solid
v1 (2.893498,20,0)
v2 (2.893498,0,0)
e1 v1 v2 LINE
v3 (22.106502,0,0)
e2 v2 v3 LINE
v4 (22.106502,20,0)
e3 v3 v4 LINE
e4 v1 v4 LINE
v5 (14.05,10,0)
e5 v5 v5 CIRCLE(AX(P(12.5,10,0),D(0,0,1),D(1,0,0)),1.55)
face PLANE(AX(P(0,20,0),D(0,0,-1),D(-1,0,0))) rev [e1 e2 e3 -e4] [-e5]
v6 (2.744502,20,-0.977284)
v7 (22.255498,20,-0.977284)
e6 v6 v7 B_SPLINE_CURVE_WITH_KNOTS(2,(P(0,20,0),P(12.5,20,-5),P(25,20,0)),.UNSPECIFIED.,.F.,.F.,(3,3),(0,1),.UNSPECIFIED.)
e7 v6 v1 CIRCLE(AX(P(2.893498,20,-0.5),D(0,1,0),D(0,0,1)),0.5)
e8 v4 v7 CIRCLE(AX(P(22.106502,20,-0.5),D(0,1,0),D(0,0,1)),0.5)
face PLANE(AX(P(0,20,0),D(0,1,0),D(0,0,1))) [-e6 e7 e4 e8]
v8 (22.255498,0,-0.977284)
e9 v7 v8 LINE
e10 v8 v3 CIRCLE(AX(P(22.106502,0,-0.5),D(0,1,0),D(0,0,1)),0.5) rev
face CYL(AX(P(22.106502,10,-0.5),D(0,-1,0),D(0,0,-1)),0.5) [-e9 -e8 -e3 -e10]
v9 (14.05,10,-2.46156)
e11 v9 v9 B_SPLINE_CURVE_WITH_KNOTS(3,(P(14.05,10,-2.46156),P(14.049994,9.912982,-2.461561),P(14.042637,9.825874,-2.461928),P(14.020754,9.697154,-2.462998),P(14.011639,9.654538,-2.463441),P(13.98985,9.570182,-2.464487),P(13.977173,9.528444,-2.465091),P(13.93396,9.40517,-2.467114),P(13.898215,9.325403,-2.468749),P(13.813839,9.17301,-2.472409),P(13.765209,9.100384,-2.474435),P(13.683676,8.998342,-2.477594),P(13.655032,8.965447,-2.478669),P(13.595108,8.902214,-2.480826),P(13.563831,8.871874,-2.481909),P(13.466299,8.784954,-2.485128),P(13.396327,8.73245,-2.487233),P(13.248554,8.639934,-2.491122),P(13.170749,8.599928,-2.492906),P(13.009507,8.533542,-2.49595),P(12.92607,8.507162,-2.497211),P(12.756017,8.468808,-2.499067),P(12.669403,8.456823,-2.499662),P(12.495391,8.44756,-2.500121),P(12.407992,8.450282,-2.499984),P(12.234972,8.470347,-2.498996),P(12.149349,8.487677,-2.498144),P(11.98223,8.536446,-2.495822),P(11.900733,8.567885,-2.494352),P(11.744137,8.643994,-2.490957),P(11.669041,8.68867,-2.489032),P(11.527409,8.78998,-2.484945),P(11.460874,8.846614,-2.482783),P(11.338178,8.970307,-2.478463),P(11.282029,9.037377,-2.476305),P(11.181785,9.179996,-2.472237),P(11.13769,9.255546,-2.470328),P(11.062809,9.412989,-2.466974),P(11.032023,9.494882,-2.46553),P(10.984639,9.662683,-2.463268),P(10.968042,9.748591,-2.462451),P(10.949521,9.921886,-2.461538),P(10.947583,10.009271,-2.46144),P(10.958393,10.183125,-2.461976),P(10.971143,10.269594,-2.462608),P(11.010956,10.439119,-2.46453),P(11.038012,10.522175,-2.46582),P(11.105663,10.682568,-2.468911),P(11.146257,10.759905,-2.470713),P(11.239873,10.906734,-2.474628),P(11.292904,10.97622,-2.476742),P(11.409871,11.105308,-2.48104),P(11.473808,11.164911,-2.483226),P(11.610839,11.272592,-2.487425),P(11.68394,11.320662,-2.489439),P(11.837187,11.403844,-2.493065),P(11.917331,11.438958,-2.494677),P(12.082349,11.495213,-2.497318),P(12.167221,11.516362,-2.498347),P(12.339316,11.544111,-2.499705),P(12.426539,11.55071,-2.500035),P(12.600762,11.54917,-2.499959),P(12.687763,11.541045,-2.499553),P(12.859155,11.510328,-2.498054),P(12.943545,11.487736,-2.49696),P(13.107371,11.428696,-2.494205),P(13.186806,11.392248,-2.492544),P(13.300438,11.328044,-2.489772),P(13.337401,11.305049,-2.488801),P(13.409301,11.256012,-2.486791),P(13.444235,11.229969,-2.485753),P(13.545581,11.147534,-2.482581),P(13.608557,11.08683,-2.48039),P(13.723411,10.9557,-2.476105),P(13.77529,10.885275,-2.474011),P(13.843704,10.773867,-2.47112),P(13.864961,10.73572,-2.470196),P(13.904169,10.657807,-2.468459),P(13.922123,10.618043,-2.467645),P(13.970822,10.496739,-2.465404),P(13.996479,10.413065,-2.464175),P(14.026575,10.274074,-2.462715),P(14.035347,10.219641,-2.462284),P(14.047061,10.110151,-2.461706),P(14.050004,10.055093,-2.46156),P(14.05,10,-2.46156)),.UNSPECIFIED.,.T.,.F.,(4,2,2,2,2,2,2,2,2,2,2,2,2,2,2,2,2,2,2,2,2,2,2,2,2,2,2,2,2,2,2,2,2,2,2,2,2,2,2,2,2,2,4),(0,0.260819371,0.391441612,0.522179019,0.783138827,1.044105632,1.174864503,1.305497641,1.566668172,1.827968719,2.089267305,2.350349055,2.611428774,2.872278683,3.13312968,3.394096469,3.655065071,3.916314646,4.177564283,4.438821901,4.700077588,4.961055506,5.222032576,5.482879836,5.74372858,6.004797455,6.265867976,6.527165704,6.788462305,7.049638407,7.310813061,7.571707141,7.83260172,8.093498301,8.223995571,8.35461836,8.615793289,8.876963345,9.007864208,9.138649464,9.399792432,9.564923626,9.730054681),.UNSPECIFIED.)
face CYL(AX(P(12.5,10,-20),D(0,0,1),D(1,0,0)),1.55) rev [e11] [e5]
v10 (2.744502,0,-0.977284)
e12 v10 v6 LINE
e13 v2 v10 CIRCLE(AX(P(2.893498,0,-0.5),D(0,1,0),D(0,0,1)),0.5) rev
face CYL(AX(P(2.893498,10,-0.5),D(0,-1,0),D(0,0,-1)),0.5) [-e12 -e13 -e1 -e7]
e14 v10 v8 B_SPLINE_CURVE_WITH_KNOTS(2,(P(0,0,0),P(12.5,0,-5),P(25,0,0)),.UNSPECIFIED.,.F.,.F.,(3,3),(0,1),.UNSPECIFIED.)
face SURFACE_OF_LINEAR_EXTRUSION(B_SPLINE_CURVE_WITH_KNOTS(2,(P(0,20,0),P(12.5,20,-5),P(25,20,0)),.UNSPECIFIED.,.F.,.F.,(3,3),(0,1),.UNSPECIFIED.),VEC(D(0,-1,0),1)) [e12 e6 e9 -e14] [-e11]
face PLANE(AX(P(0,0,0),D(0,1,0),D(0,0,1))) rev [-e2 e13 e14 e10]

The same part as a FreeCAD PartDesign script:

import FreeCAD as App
import Part
import Sketcher

V = App.Vector
Q = App.Units.Quantity


def edges_at(feature, points):
    """Names of the edges that pass closest to the given points."""
    edges = feature.Shape.Edges
    near = lambda p: min(range(len(edges)), key=lambda i: edges[i].distToShape(Part.Vertex(*p))[0])
    return sorted({f"Edge{near(p) + 1}" for p in points})

doc = App.newDocument("Part")
body = doc.addObject("PartDesign::Body", "Body")

# Sketch on XZ plane
sketch1 = doc.addObject("Sketcher::SketchObject", "Sketch")
body.addObject(sketch1)
sketch1.AttachmentSupport = (doc.XZ_Plane, [""])
sketch1.MapMode = "FlatFace"
sketch1.addGeometry([
    Part.BSplineCurve([V(25, 0, 0), V(12.5, -5, 0), V(0, 0, 0)], [3, 3], [0.5, 1.5], False, 2, [1, 1, 1], False),
    Part.LineSegment(V(0, 0, 0), V(25, 0, 0)),
], False)
sketch1.addConstraint([
    Sketcher.Constraint("Block", 0),
    Sketcher.Constraint("Coincident", 0, 1, 1, 2),
    Sketcher.Constraint("Coincident", 1, 1, 0, 2),
])
pad1 = doc.addObject("PartDesign::Pad", "Pad")
body.addObject(pad1)
pad1.Profile = sketch1
pad1.Length = 20
pad1.Reversed = True

# Sketch on XY plane
sketch2 = doc.addObject("Sketcher::SketchObject", "Sketch001")
body.addObject(sketch2)
sketch2.AttachmentSupport = (doc.XY_Plane, [""])
sketch2.MapMode = "FlatFace"
sketch2.addGeometry(Part.Circle(V(12.5, 10, 0), V(0, 0, 1), 1.55), False)
sketch2.addConstraint([
    Sketcher.Constraint("Diameter", 0, Q("3.1 mm")),
    Sketcher.Constraint("DistanceY", -1, 1, 0, 3, Q("10 mm")),
    Sketcher.Constraint("DistanceX", -1, 1, 0, 3, Q("12.5 mm")),
])
pocket1 = doc.addObject("PartDesign::Pocket", "Pocket")
body.addObject(pocket1)
pocket1.Profile = sketch2
pocket1.Length = 20
doc.recompute()

fillet = doc.addObject("PartDesign::Fillet", "Fillet")
body.addObject(fillet)
fillet.Base = (pocket1, edges_at(pocket1, [(0, 10, 0), (25, 10, 0)]))
fillet.Radius = 0.5

doc.recompute()
